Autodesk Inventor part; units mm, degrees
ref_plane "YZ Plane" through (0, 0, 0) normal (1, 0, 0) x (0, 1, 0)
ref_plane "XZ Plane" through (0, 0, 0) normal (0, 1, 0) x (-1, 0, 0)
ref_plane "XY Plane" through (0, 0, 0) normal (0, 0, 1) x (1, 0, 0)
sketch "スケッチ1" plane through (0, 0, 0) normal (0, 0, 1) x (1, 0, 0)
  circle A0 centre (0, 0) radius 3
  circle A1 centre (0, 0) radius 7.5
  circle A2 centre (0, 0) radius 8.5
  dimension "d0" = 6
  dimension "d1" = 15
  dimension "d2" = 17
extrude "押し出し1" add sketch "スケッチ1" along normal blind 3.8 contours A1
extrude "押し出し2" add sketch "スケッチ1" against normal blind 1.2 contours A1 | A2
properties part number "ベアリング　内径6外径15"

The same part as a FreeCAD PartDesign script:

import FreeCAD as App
import Part
import Sketcher
Q = App.Units.Quantity

doc = App.newDocument("Part")
body = doc.addObject("PartDesign::Body", "Body")

# Sketch on XY plane
sketch1 = body.newObject("Sketcher::SketchObject", "Sketch")
sketch1.AttachmentSupport = (doc.getObject("XY_Plane"), [""])
sketch1.MapMode = "FlatFace"
sketch1.addGeometry(Part.Circle(App.Vector(0, 0, 0), App.Vector(0, 0, 1), 7.5), False)
sketch1.addGeometry(Part.Circle(App.Vector(0, 0, 0), App.Vector(0, 0, 1), 3), False)
sketch1.addConstraint(Sketcher.Constraint("Coincident", 0, 3, -1, 1))
sketch1.addConstraint(Sketcher.Constraint("Coincident", 1, 3, -1, 1))
sketch1.addConstraint(Sketcher.Constraint("Diameter", 0, Q("15 mm")))
sketch1.addConstraint(Sketcher.Constraint("Diameter", 1, Q("6 mm")))
pad1 = body.newObject("PartDesign::Pad", "Pad")
pad1.Profile = sketch1
pad1.Length = 3.8

# Sketch on XY plane
sketch2 = body.newObject("Sketcher::SketchObject", "Sketch001")
sketch2.AttachmentSupport = (doc.getObject("XY_Plane"), [""])
sketch2.MapMode = "FlatFace"
sketch2.addGeometry(Part.Circle(App.Vector(0, 0, 0), App.Vector(0, 0, 1), 8.5), False)
sketch2.addGeometry(Part.Circle(App.Vector(0, 0, 0), App.Vector(0, 0, 1), 3), False)
sketch2.addConstraint(Sketcher.Constraint("Coincident", 0, 3, -1, 1))
sketch2.addConstraint(Sketcher.Constraint("Coincident", 1, 3, -1, 1))
sketch2.addConstraint(Sketcher.Constraint("Diameter", 0, Q("17 mm")))
sketch2.addConstraint(Sketcher.Constraint("Diameter", 1, Q("6 mm")))
pad2 = body.newObject("PartDesign::Pad", "Pad001")
pad2.Profile = sketch2
pad2.Length = 1.2
pad2.Reversed = True

doc.recompute()
